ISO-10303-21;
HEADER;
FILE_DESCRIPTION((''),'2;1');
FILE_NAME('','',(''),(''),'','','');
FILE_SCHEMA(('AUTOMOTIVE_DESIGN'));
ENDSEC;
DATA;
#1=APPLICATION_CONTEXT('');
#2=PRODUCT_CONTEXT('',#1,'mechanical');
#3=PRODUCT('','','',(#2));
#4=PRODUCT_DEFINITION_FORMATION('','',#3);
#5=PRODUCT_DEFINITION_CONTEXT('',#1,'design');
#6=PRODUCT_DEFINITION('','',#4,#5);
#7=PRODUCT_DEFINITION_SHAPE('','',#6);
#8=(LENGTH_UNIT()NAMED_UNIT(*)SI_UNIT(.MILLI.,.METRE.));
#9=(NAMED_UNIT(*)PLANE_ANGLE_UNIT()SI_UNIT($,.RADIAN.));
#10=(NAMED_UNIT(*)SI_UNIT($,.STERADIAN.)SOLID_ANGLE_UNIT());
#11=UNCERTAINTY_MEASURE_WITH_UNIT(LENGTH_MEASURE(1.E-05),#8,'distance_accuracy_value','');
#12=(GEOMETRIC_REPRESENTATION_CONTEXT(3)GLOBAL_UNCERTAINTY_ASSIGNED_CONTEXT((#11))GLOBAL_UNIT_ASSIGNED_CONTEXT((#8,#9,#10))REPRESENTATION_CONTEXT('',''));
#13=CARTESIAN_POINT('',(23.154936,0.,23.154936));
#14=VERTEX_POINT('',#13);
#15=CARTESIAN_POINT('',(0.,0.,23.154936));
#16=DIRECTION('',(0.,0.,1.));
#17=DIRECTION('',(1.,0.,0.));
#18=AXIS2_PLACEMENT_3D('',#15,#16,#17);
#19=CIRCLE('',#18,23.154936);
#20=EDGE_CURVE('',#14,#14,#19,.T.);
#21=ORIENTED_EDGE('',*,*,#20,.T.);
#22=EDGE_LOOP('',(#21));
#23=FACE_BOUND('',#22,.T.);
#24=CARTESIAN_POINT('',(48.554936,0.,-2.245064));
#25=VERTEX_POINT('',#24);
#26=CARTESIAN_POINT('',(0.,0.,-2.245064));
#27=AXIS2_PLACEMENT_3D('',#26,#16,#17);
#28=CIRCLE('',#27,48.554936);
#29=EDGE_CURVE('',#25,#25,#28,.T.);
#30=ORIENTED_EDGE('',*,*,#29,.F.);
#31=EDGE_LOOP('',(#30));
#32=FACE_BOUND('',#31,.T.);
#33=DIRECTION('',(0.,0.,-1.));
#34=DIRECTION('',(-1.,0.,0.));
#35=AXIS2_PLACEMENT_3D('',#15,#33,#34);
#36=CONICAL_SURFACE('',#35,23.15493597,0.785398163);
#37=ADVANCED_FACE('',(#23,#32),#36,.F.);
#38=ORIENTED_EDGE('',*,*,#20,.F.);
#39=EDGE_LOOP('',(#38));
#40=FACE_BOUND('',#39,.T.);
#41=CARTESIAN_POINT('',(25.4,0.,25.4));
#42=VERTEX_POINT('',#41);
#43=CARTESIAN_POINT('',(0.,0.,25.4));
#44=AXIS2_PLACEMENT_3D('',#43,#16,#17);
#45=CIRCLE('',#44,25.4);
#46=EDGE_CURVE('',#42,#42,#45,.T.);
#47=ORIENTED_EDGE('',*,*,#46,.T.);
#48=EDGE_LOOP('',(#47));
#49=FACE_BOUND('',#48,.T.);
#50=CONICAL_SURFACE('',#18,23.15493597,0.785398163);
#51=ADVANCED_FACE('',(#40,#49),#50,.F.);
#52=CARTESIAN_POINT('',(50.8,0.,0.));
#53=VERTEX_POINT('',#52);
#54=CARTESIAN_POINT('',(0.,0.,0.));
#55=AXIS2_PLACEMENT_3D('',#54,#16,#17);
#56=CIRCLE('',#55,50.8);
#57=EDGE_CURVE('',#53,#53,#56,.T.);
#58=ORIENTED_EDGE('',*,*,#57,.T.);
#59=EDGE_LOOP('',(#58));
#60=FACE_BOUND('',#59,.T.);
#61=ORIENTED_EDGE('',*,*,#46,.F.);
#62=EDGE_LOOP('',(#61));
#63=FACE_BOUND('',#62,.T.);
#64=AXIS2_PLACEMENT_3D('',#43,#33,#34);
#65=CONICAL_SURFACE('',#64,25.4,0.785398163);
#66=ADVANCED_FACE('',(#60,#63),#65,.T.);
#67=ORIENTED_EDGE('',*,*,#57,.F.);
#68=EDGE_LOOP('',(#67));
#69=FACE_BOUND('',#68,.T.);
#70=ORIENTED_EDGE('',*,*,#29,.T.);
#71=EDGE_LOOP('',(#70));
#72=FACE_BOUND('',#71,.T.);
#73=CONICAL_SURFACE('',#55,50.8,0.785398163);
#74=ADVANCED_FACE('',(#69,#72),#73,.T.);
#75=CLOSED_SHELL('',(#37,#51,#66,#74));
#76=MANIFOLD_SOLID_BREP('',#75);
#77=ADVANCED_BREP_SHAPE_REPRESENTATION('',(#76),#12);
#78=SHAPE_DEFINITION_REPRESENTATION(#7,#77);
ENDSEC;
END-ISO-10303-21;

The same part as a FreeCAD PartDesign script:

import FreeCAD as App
import Part
import Sketcher
Q = App.Units.Quantity


def add_polygon(sketch, points):
    """Adds a closed chain of lines whose ends are joined by coincident constraints."""
    first, n = sketch.GeometryCount, len(points)
    for a, b in zip(points, points[1:] + points[:1]):
        sketch.addGeometry(Part.LineSegment(App.Vector(*a, 0), App.Vector(*b, 0)), False)
    for i in range(n):
        sketch.addConstraint(Sketcher.Constraint("Coincident", first + i, 2, first + (i + 1) % n, 1))

doc = App.newDocument("Part")
body = doc.addObject("PartDesign::Body", "Body")

# Sketch on YZ plane
sketch1 = body.newObject("Sketcher::SketchObject", "Sketch")
sketch1.AttachmentSupport = (doc.getObject("YZ_Plane"), [""])
sketch1.MapMode = "FlatFace"
add_polygon(sketch1, [(50.8, 0), (25.4, 25.4), (23.154936, 23.154936), (48.554936, -2.245064)])  # lines 0-3
sketch1.addConstraint(Sketcher.Constraint("PointOnObject", 3, 2, -1))
sketch1.addConstraint(Sketcher.Constraint("Perpendicular", 0, 1))
sketch1.addConstraint(Sketcher.Constraint("Perpendicular", 1, 2))
sketch1.addConstraint(Sketcher.Constraint("Perpendicular", 2, 3))
sketch1.addConstraint(Sketcher.Constraint("DistanceX", -1, 1, 0, 2, Q("1 in")))
sketch1.addConstraint(Sketcher.Constraint("DistanceY", -1, 1, 0, 2, Q("1 in")))
sketch1.addConstraint(Sketcher.Constraint("DistanceX", -1, 1, 3, 2, Q("2 in")))
sketch1.addConstraint(Sketcher.Constraint("Distance", 1, Q("0.125 in")))
revolution = body.newObject("PartDesign::Revolution", "Revolution")
revolution.Profile = sketch1
revolution.ReferenceAxis = (sketch1, ["V_Axis"])
revolution.Angle = 360

doc.recompute()
